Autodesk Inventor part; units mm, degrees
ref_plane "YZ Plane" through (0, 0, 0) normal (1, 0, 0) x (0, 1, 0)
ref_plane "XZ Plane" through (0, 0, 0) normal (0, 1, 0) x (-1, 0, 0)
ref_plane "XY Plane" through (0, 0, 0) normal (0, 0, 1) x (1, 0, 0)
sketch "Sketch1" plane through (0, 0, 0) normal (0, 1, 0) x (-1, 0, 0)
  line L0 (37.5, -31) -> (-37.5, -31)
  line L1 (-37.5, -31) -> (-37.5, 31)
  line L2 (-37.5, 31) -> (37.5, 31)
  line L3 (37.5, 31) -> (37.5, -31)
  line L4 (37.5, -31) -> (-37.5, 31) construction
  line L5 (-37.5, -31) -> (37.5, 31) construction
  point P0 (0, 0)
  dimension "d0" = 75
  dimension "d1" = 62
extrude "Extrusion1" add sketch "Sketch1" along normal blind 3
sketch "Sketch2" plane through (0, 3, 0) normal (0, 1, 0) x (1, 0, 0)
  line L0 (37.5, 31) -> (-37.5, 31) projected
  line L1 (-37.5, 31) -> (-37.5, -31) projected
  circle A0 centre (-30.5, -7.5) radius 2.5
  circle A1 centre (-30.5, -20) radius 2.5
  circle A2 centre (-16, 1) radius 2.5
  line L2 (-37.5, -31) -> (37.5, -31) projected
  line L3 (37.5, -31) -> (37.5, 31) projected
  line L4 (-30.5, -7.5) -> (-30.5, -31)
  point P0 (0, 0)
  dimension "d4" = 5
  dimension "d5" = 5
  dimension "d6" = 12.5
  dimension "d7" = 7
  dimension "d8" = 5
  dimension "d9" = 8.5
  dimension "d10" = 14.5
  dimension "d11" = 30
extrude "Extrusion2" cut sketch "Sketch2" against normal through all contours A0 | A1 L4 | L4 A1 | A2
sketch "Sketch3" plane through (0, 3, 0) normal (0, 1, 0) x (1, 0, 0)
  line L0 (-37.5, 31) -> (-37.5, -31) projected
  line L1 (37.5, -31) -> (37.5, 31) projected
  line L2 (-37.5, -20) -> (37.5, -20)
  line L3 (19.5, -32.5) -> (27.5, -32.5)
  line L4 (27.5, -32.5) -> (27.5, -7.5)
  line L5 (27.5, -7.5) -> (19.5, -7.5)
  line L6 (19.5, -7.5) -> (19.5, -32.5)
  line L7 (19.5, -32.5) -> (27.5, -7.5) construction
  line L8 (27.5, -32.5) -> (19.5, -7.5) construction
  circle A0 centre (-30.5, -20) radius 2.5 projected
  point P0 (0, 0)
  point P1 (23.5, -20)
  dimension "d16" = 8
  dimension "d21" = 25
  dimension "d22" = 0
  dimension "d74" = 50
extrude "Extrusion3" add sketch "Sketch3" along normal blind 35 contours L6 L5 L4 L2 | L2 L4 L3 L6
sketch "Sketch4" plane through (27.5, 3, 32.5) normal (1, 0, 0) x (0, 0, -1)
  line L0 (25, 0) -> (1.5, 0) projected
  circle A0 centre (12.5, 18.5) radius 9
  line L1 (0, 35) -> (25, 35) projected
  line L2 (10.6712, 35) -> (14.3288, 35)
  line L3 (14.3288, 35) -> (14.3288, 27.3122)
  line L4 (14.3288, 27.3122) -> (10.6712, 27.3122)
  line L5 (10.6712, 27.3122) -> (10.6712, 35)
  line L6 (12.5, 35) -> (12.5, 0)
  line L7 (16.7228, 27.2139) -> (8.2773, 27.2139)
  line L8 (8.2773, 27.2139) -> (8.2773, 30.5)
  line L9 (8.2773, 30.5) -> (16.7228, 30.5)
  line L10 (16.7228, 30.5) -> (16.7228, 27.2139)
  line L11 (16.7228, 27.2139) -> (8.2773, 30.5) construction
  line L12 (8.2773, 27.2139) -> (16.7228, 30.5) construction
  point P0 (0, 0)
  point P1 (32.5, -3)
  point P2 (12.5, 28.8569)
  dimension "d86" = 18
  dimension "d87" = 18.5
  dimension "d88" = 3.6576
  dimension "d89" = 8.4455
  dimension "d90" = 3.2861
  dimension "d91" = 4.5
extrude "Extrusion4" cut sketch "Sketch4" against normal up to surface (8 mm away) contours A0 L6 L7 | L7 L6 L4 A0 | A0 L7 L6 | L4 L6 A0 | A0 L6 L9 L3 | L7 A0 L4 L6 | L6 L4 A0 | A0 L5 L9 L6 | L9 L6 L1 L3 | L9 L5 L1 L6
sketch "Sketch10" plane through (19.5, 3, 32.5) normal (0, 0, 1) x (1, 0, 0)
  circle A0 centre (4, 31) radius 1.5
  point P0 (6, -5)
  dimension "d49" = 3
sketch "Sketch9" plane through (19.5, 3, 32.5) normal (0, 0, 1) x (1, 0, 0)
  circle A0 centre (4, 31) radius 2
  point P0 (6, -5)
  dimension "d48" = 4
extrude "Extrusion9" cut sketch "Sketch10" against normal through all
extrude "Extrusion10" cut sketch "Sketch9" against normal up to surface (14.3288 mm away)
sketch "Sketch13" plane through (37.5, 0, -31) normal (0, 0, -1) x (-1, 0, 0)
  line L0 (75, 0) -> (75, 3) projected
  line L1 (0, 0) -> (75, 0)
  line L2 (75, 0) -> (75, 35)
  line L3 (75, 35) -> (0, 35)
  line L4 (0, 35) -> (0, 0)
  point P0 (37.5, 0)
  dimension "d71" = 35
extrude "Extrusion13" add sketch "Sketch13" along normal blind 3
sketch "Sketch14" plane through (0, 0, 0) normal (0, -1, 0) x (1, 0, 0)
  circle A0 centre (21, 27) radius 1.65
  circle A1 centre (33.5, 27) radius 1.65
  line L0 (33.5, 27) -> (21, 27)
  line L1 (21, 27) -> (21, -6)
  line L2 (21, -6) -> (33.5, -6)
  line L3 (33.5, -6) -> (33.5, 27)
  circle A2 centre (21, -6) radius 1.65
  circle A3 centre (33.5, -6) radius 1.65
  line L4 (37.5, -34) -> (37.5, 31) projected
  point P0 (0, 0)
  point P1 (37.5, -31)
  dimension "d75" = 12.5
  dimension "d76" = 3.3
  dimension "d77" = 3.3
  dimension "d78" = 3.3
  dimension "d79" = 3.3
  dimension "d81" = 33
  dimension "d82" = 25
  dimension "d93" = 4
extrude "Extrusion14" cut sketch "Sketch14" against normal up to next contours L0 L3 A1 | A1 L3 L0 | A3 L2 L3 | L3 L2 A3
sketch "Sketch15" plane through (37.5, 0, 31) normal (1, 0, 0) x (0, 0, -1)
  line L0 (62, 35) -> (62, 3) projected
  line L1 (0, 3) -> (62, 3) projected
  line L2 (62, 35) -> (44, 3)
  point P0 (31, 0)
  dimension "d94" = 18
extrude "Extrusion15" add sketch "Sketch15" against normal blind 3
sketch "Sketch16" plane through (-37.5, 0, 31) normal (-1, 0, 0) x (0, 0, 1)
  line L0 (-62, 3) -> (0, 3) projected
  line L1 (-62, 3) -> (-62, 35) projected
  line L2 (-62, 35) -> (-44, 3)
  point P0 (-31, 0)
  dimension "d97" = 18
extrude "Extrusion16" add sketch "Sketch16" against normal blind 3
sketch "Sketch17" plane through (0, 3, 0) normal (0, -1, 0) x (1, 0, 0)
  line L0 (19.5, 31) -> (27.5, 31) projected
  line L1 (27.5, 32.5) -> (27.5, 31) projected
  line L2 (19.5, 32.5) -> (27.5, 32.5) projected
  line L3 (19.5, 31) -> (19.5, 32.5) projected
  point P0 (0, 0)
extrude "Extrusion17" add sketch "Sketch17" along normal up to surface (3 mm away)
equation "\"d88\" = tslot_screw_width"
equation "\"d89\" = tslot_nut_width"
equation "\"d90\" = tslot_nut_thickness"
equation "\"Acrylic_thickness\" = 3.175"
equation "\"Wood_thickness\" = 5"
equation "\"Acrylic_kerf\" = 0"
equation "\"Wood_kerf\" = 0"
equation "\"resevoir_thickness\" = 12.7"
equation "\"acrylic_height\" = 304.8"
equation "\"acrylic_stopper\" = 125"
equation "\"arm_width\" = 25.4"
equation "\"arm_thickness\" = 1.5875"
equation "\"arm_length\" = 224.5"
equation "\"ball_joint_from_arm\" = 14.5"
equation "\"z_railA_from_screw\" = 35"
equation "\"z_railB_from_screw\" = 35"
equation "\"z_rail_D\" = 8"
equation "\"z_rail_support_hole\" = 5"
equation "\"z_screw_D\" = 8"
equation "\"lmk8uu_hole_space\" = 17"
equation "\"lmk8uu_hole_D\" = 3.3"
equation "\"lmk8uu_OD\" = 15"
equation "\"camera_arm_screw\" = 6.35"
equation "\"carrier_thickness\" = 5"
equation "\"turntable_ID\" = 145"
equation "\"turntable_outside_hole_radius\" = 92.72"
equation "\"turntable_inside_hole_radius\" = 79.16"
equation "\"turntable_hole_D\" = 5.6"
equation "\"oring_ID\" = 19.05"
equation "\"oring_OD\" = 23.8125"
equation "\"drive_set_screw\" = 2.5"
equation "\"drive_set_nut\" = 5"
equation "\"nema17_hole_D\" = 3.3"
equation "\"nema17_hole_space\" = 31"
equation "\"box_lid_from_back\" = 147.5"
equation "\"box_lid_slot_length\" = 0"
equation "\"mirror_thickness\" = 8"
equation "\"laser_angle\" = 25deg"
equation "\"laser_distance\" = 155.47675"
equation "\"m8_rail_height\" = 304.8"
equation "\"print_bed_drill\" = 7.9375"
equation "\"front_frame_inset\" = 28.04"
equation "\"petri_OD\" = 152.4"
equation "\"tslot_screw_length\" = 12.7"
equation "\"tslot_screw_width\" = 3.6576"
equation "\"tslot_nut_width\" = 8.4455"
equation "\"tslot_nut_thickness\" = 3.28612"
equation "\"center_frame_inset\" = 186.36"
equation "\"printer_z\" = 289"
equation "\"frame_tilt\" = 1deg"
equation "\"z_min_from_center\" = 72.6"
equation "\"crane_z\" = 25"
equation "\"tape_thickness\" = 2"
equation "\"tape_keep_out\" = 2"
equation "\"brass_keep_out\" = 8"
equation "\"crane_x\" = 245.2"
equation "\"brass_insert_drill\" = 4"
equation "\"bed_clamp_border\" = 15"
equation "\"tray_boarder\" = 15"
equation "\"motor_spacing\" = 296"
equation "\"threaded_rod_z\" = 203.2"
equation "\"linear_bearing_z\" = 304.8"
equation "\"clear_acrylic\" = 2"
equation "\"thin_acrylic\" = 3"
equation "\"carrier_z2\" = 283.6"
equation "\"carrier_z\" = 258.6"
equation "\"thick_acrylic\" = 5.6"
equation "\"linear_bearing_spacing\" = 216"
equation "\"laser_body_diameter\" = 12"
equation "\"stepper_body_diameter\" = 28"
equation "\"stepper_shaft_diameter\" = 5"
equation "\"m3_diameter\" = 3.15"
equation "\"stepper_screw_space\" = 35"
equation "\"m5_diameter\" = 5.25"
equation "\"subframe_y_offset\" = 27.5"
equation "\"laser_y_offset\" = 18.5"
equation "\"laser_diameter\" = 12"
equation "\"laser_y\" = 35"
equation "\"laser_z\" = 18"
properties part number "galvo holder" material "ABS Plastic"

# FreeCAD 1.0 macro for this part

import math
import FreeCAD as App
import Part
import Sketcher
Q = App.Units.Quantity

doc = App.newDocument("Part")
params = doc.addObject("Spreadsheet::Sheet", "Params")
for row, (alias, value) in enumerate([
    ("sketch1_width", "75 mm"),
    ("sketch1_height", "62 mm"),
    ("pad1_length", "3 mm"),
    ("sketch2_diameter", "5 mm"),
    ("sketch3_width", "8 mm"),
    ("sketch3_height", "25 mm"),
    ("pad2_length", "35 mm"),
    ("sketch4_radius", "9 mm"),
    ("pocket2_length", "8 mm"),
    ("sketch5_diameter", "3 mm"),
    ("sketch6_diameter", "4 mm"),
    ("pocket4_length", "14.3288 mm"),
    ("sketch7_height", "35 mm"),
    ("sketch7_width", "75 mm"),
    ("pad3_length", "3 mm"),
    ("sketch8_diameter", "3.3 mm"),
    ("sketch9_height", "18 mm"),
    ("sketch9_width", "32 mm"),
    ("pad4_length", "3 mm"),
    ("sketch10_height", "18 mm"),
    ("sketch10_width", "32 mm"),
    ("pad5_length", "3 mm"),
    ("sketch11_width", "8 mm"),
    ("sketch11_height", "1.5 mm"),
    ("pad6_length", "3 mm"),
], start=1):
    params.set(f"A{row}", alias)
    params.set(f"B{row}", "=" + value)
    params.setAlias(f"B{row}", alias)

body = doc.addObject("PartDesign::Body", "Body")

# Sketch on XZ plane
sketch1 = body.newObject("Sketcher::SketchObject", "Sketch")
sketch1.AttachmentSupport = (doc.getObject("XZ_Plane"), [""])
sketch1.MapMode = "FlatFace"
sketch1.addGeometry([
    Part.LineSegment(App.Vector(38, -31, 0), App.Vector(-38, -31, 0)),
    Part.LineSegment(App.Vector(-38, -31, 0), App.Vector(-38, 31, 0)),
    Part.LineSegment(App.Vector(-38, 31, 0), App.Vector(38, 31, 0)),
    Part.LineSegment(App.Vector(38, 31, 0), App.Vector(38, -31, 0)),
], False)
sketch1.addConstraint([
    Sketcher.Constraint("Coincident", 0, 2, 1, 1),
    Sketcher.Constraint("Coincident", 1, 2, 2, 1),
    Sketcher.Constraint("Coincident", 2, 2, 3, 1),
    Sketcher.Constraint("Coincident", 3, 2, 0, 1),
    Sketcher.Constraint("Horizontal", 0),
    Sketcher.Constraint("Vertical", 1),
    Sketcher.Constraint("Horizontal", 2),
    Sketcher.Constraint("Vertical", 3),
    Sketcher.Constraint("Symmetric", 0, 2, 2, 2, -1, 1),
    Sketcher.Constraint("DistanceX", 0, 2, 0, 1, Q("75 mm")),
    Sketcher.Constraint("DistanceY", 1, 1, 1, 2, Q("62 mm")),
])
sketch1.setExpression("Constraints[9]", "Params.sketch1_width")
sketch1.setExpression("Constraints[10]", "Params.sketch1_height")
pad1 = body.newObject("PartDesign::Pad", "Pad")
pad1.Profile = sketch1
pad1.setExpression("Length", "Params.pad1_length")
pad1.Reversed = True

# Sketch on XZ plane
sketch2 = body.newObject("Sketcher::SketchObject", "Sketch001")
sketch2.AttachmentSupport = (doc.getObject("XZ_Plane"), [""])
sketch2.MapMode = "FlatFace"
sketch2.AttachmentOffset = App.Placement(App.Vector(0, 0, -3), App.Rotation())
sketch2.addGeometry([
    Part.Circle(App.Vector(-30.5, 7.5, 0), App.Vector(0, 0, 1), 2.5),
    Part.Circle(App.Vector(-30.5, 20, 0), App.Vector(0, 0, 1), 2.5),
    Part.Circle(App.Vector(-16, -1, 0), App.Vector(0, 0, 1), 2.5),
], False)
sketch2.addConstraint([
    Sketcher.Constraint("Equal", 0, 1),
    Sketcher.Constraint("Equal", 1, 2),
    Sketcher.Constraint("Vertical", 0, 3, 1, 3),
    Sketcher.Constraint("Diameter", 0, Q("5 mm")),
    Sketcher.Constraint("DistanceY", 0, 3, 1, 3, Q("12.5 mm")),
    Sketcher.Constraint("DistanceX", 0, 3, 2, 3, Q("14.5 mm")),
    Sketcher.Constraint("DistanceY", 2, 3, 0, 3, Q("8.5 mm")),
    Sketcher.Constraint("DistanceY", -1, 1, 1, 3, Q("20 mm")),
    Sketcher.Constraint("DistanceX", 2, 3, -1, 1, Q("16 mm")),
])
sketch2.setExpression("Constraints[3]", "Params.sketch2_diameter")
pocket1 = body.newObject("PartDesign::Pocket", "Pocket")
pocket1.Profile = sketch2
pocket1.Type = "ThroughAll"
pocket1.Reversed = True

# Sketch on XZ plane
sketch3 = body.newObject("Sketcher::SketchObject", "Sketch002")
sketch3.AttachmentSupport = (doc.getObject("XZ_Plane"), [""])
sketch3.MapMode = "FlatFace"
sketch3.AttachmentOffset = App.Placement(App.Vector(0, 0, -3), App.Rotation())
sketch3.addGeometry([
    Part.LineSegment(App.Vector(20, 8, 0), App.Vector(20, 32, 0)),
    Part.LineSegment(App.Vector(20, 32, 0), App.Vector(28, 32, 0)),
    Part.LineSegment(App.Vector(28, 32, 0), App.Vector(28, 8, 0)),
    Part.LineSegment(App.Vector(28, 8, 0), App.Vector(20, 8, 0)),
], False)
sketch3.addConstraint([
    Sketcher.Constraint("Coincident", 0, 2, 1, 1),
    Sketcher.Constraint("Coincident", 1, 2, 2, 1),
    Sketcher.Constraint("Coincident", 2, 2, 3, 1),
    Sketcher.Constraint("Coincident", 3, 2, 0, 1),
    Sketcher.Constraint("Vertical", 0),
    Sketcher.Constraint("Horizontal", 1),
    Sketcher.Constraint("Vertical", 2),
    Sketcher.Constraint("Horizontal", 3),
    Sketcher.Constraint("DistanceX", 1, 1, 1, 2, Q("8 mm")),
    Sketcher.Constraint("DistanceY", 0, 1, 0, 2, Q("25 mm")),
    Sketcher.Constraint("DistanceX", -1, 1, 0, 2, Q("19.5 mm")),
    Sketcher.Constraint("DistanceY", -1, 1, 0, 2, Q("32.5 mm")),
])
sketch3.setExpression("Constraints[8]", "Params.sketch3_width")
sketch3.setExpression("Constraints[9]", "Params.sketch3_height")
pad2 = body.newObject("PartDesign::Pad", "Pad001")
pad2.Profile = sketch3
pad2.setExpression("Length", "Params.pad2_length")
pad2.Reversed = True

# Sketch on YZ plane
sketch4 = body.newObject("Sketcher::SketchObject", "Sketch003")
sketch4.AttachmentSupport = (doc.getObject("YZ_Plane"), [""])
sketch4.MapMode = "FlatFace"
sketch4.AttachmentOffset = App.Placement(App.Vector(0, 0, 27.5), App.Rotation())
sketch4.addGeometry([
    Part.LineSegment(App.Vector(30.3, 18.2, 0), App.Vector(38, 18.2, 0)),
    Part.LineSegment(App.Vector(38, 18.2, 0), App.Vector(38, 21.8, 0)),
    Part.LineSegment(App.Vector(38, 21.8, 0), App.Vector(30.3, 21.8, 0)),
    Part.ArcOfCircle(Part.Circle(App.Vector(21.5, 20, 0), App.Vector(0, 0, 1), 9), math.radians(12), math.radians(348)),
], False)
sketch4.addConstraint([
    Sketcher.Constraint("Coincident", 0, 2, 1, 1),
    Sketcher.Constraint("Coincident", 1, 2, 2, 1),
    Sketcher.Constraint("Coincident", 2, 2, 3, 1),
    Sketcher.Constraint("Coincident", 3, 2, 0, 1),
    Sketcher.Constraint("Horizontal", 0),
    Sketcher.Constraint("Vertical", 1),
    Sketcher.Constraint("Horizontal", 2),
    Sketcher.Constraint("Vertical", 2, 2, 3, 2),
    Sketcher.Constraint("Radius", 3, Q("9 mm")),
    Sketcher.Constraint("DistanceY", 1, 1, 1, 2, Q("3.6576 mm")),
    Sketcher.Constraint("DistanceY", -1, 1, 3, 3, Q("20 mm")),
    Sketcher.Constraint("DistanceX", -1, 1, 0, 2, Q("38 mm")),
    Sketcher.Constraint("DistanceX", -1, 1, 3, 3, Q("21.5 mm")),
])
sketch4.setExpression("Constraints[8]", "Params.sketch4_radius")
pocket2 = body.newObject("PartDesign::Pocket", "Pocket001")
pocket2.Profile = sketch4
pocket2.setExpression("Length", "Params.pocket2_length")

# Sketch on XY plane
sketch5 = body.newObject("Sketcher::SketchObject", "Sketch004")
sketch5.AttachmentSupport = (doc.getObject("XY_Plane"), [""])
sketch5.MapMode = "FlatFace"
sketch5.AttachmentOffset = App.Placement(App.Vector(0, 0, 32.5), App.Rotation())
sketch5.addGeometry(Part.Circle(App.Vector(23.5, 34, 0), App.Vector(0, 0, 1), 1.5), False)
sketch5.addConstraint([
    Sketcher.Constraint("Diameter", 0, Q("3 mm")),
    Sketcher.Constraint("DistanceY", -1, 1, 0, 3, Q("34 mm")),
    Sketcher.Constraint("DistanceX", -1, 1, 0, 3, Q("23.5 mm")),
])
sketch5.setExpression("Constraints[0]", "Params.sketch5_diameter")
pocket3 = body.newObject("PartDesign::Pocket", "Pocket002")
pocket3.Profile = sketch5
pocket3.Type = "ThroughAll"

# Sketch on XY plane
sketch6 = body.newObject("Sketcher::SketchObject", "Sketch005")
sketch6.AttachmentSupport = (doc.getObject("XY_Plane"), [""])
sketch6.MapMode = "FlatFace"
sketch6.AttachmentOffset = App.Placement(App.Vector(0, 0, 32.5), App.Rotation())
sketch6.addGeometry(Part.Circle(App.Vector(23.5, 34, 0), App.Vector(0, 0, 1), 2), False)
sketch6.addConstraint([
    Sketcher.Constraint("Diameter", 0, Q("4 mm")),
    Sketcher.Constraint("DistanceY", -1, 1, 0, 3, Q("34 mm")),
    Sketcher.Constraint("DistanceX", -1, 1, 0, 3, Q("23.5 mm")),
])
sketch6.setExpression("Constraints[0]", "Params.sketch6_diameter")
pocket4 = body.newObject("PartDesign::Pocket", "Pocket003")
pocket4.Profile = sketch6
pocket4.setExpression("Length", "Params.pocket4_length")

# Sketch on XY plane
sketch7 = body.newObject("Sketcher::SketchObject", "Sketch006")
sketch7.AttachmentSupport = (doc.getObject("XY_Plane"), [""])
sketch7.MapMode = "FlatFace"
sketch7.AttachmentOffset = App.Placement(App.Vector(0, 0, -31), App.Rotation())
sketch7.addGeometry([
    Part.LineSegment(App.Vector(38, 0, 0), App.Vector(-38, 0, 0)),
    Part.LineSegment(App.Vector(-38, 0, 0), App.Vector(-38, 35, 0)),
    Part.LineSegment(App.Vector(-38, 35, 0), App.Vector(38, 35, 0)),
    Part.LineSegment(App.Vector(38, 35, 0), App.Vector(38, 0, 0)),
], False)
sketch7.addConstraint([
    Sketcher.Constraint("Coincident", 0, 2, 1, 1),
    Sketcher.Constraint("Coincident", 1, 2, 2, 1),
    Sketcher.Constraint("Coincident", 2, 2, 3, 1),
    Sketcher.Constraint("Coincident", 3, 2, 0, 1),
    Sketcher.Constraint("Horizontal", 0),
    Sketcher.Constraint("Vertical", 1),
    Sketcher.Constraint("Horizontal", 2),
    Sketcher.Constraint("Vertical", 3),
    Sketcher.Constraint("Symmetric", 0, 2, 3, 2, -1, 1),
    Sketcher.Constraint("DistanceY", 1, 1, 1, 2, Q("35 mm")),
    Sketcher.Constraint("DistanceX", 0, 2, 0, 1, Q("75 mm")),
])
sketch7.setExpression("Constraints[9]", "Params.sketch7_height")
sketch7.setExpression("Constraints[10]", "Params.sketch7_width")
pad3 = body.newObject("PartDesign::Pad", "Pad002")
pad3.Profile = sketch7
pad3.setExpression("Length", "Params.pad3_length")
pad3.Reversed = True

# Sketch on XZ plane
sketch8 = body.newObject("Sketcher::SketchObject", "Sketch007")
sketch8.AttachmentSupport = (doc.getObject("XZ_Plane"), [""])
sketch8.MapMode = "FlatFace"
sketch8.addGeometry([
    Part.Circle(App.Vector(33.5, 27, 0), App.Vector(0, 0, 1), 1.6),
    Part.Circle(App.Vector(33.5, -6, 0), App.Vector(0, 0, 1), 1.6),
], False)
sketch8.addConstraint([
    Sketcher.Constraint("Equal", 0, 1),
    Sketcher.Constraint("Vertical", 0, 3, 1, 3),
    Sketcher.Constraint("Diameter", 0, Q("3.3 mm")),
    Sketcher.Constraint("DistanceY", 1, 3, 0, 3, Q("33 mm")),
    Sketcher.Constraint("DistanceY", -1, 1, 0, 3, Q("27 mm")),
    Sketcher.Constraint("DistanceX", -1, 1, 0, 3, Q("33.5 mm")),
])
sketch8.setExpression("Constraints[2]", "Params.sketch8_diameter")
pocket5 = body.newObject("PartDesign::Pocket", "Pocket004")
pocket5.Profile = sketch8
pocket5.Type = "UpToFirst"

# Sketch on YZ plane
sketch9 = body.newObject("Sketcher::SketchObject", "Sketch008")
sketch9.AttachmentSupport = (doc.getObject("YZ_Plane"), [""])
sketch9.MapMode = "FlatFace"
sketch9.AttachmentOffset = App.Placement(App.Vector(0, 0, 37.5), App.Rotation())
sketch9.addGeometry([
    Part.LineSegment(App.Vector(3, -31, 0), App.Vector(35, -31, 0)),
    Part.LineSegment(App.Vector(35, -31, 0), App.Vector(3, -13, 0)),
    Part.LineSegment(App.Vector(3, -13, 0), App.Vector(3, -31, 0)),
], False)
sketch9.addConstraint([
    Sketcher.Constraint("Coincident", 0, 2, 1, 1),
    Sketcher.Constraint("Coincident", 1, 2, 2, 1),
    Sketcher.Constraint("Coincident", 2, 2, 0, 1),
    Sketcher.Constraint("Horizontal", 0),
    Sketcher.Constraint("Vertical", 2),
    Sketcher.Constraint("DistanceY", 2, 2, 2, 1, Q("18 mm")),
    Sketcher.Constraint("DistanceX", 0, 1, 0, 2, Q("32 mm")),
    Sketcher.Constraint("DistanceX", -1, 1, 0, 2, Q("35 mm")),
    Sketcher.Constraint("DistanceY", 0, 2, -1, 1, Q("31 mm")),
])
sketch9.setExpression("Constraints[5]", "Params.sketch9_height")
sketch9.setExpression("Constraints[6]", "Params.sketch9_width")
pad4 = body.newObject("PartDesign::Pad", "Pad003")
pad4.Profile = sketch9
pad4.setExpression("Length", "Params.pad4_length")
pad4.Reversed = True

# Sketch on YZ plane
sketch10 = body.newObject("Sketcher::SketchObject", "Sketch009")
sketch10.AttachmentSupport = (doc.getObject("YZ_Plane"), [""])
sketch10.MapMode = "FlatFace"
sketch10.AttachmentOffset = App.Placement(App.Vector(0, 0, -37.5), App.Rotation())
sketch10.addGeometry([
    Part.LineSegment(App.Vector(35, -31, 0), App.Vector(3, -31, 0)),
    Part.LineSegment(App.Vector(3, -31, 0), App.Vector(3, -13, 0)),
    Part.LineSegment(App.Vector(3, -13, 0), App.Vector(35, -31, 0)),
], False)
sketch10.addConstraint([
    Sketcher.Constraint("Coincident", 0, 2, 1, 1),
    Sketcher.Constraint("Coincident", 1, 2, 2, 1),
    Sketcher.Constraint("Coincident", 2, 2, 0, 1),
    Sketcher.Constraint("Horizontal", 0),
    Sketcher.Constraint("Vertical", 1),
    Sketcher.Constraint("DistanceY", 1, 1, 1, 2, Q("18 mm")),
    Sketcher.Constraint("DistanceX", 0, 2, 0, 1, Q("32 mm")),
    Sketcher.Constraint("DistanceX", -1, 1, 0, 2, Q("3 mm")),
    Sketcher.Constraint("DistanceY", 0, 2, -1, 1, Q("31 mm")),
])
sketch10.setExpression("Constraints[5]", "Params.sketch10_height")
sketch10.setExpression("Constraints[6]", "Params.sketch10_width")
pad5 = body.newObject("PartDesign::Pad", "Pad004")
pad5.Profile = sketch10
pad5.setExpression("Length", "Params.pad5_length")

# Sketch on XZ plane
sketch11 = body.newObject("Sketcher::SketchObject", "Sketch010")
sketch11.AttachmentSupport = (doc.getObject("XZ_Plane"), [""])
sketch11.MapMode = "FlatFace"
sketch11.AttachmentOffset = App.Placement(App.Vector(0, 0, -3), App.Rotation())
sketch11.addGeometry([
    Part.LineSegment(App.Vector(19.5, 32.5, 0), App.Vector(19.5, 31, 0)),
    Part.LineSegment(App.Vector(19.5, 31, 0), App.Vector(27.5, 31, 0)),
    Part.LineSegment(App.Vector(27.5, 31, 0), App.Vector(27.5, 32.5, 0)),
    Part.LineSegment(App.Vector(27.5, 32.5, 0), App.Vector(19.5, 32.5, 0)),
], False)
sketch11.addConstraint([
    Sketcher.Constraint("Coincident", 0, 2, 1, 1),
    Sketcher.Constraint("Coincident", 1, 2, 2, 1),
    Sketcher.Constraint("Coincident", 2, 2, 3, 1),
    Sketcher.Constraint("Coincident", 3, 2, 0, 1),
    Sketcher.Constraint("Vertical", 0),
    Sketcher.Constraint("Horizontal", 1),
    Sketcher.Constraint("Vertical", 2),
    Sketcher.Constraint("Horizontal", 3),
    Sketcher.Constraint("DistanceX", 1, 1, 1, 2, Q("8 mm")),
    Sketcher.Constraint("DistanceY", 0, 2, 0, 1, Q("1.5 mm")),
    Sketcher.Constraint("DistanceY", -1, 1, 0, 2, Q("31 mm")),
    Sketcher.Constraint("DistanceX", -1, 1, 0, 2, Q("19.5 mm")),
])
sketch11.setExpression("Constraints[8]", "Params.sketch11_width")
sketch11.setExpression("Constraints[9]", "Params.sketch11_height")
pad6 = body.newObject("PartDesign::Pad", "Pad005")
pad6.Profile = sketch11
pad6.setExpression("Length", "Params.pad6_length")

doc.recompute()
